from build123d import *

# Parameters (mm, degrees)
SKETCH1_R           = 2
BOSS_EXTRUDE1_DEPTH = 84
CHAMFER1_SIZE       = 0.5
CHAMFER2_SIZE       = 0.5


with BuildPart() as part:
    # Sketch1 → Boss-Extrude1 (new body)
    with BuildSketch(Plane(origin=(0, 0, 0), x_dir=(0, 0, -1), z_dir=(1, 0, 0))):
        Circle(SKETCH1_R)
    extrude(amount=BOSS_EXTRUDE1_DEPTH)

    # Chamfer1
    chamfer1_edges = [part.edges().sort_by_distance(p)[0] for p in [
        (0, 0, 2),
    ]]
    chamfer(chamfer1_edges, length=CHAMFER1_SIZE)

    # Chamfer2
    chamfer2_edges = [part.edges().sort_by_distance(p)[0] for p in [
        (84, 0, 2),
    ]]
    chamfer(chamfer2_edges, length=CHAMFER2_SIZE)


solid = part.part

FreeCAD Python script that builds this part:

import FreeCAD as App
import Part
import Sketcher
Q = App.Units.Quantity


def edges_at(feature, points):
    """Names of the edges that pass closest to the given points."""
    edges = feature.Shape.Edges
    near = lambda p: min(range(len(edges)), key=lambda i: edges[i].distToShape(Part.Vertex(*p))[0])
    return sorted({f"Edge{near(p) + 1}" for p in points})

doc = App.newDocument("Part")
params = doc.addObject("Spreadsheet::Sheet", "Params")
for row, (alias, value) in enumerate([
    ("sketch1_diameter", "4 mm"),
    ("pad1_length", "84 mm"),
    ("chamfer_size", "0.5 mm"),
    ("chamfer2_size", "0.5 mm"),
], start=1):
    params.set(f"A{row}", alias)
    params.set(f"B{row}", "=" + value)
    params.setAlias(f"B{row}", alias)

body = doc.addObject("PartDesign::Body", "Body")

sketch1 = body.newObject("Sketcher::SketchObject", "Sketch")
sketch1.AttachmentSupport = (doc.getObject("YZ_Plane"), [""])
sketch1.MapMode = "FlatFace"
sketch1.addGeometry(Part.Circle(App.Vector(0, 0, 0), App.Vector(0, 0, 1), 2), False)
sketch1.addConstraint([
    Sketcher.Constraint("Coincident", 0, 3, -1, 1),
    Sketcher.Constraint("Diameter", 0, Q("4 mm")),
])
sketch1.setExpression("Constraints[1]", "Params.sketch1_diameter")
pad1 = body.newObject("PartDesign::Pad", "Pad")
pad1.Profile = sketch1
pad1.setExpression("Length", "Params.pad1_length")
doc.recompute()

chamfer = body.newObject("PartDesign::Chamfer", "Chamfer")
chamfer.Base = (pad1, edges_at(pad1, [(0, 0, 2)]))
chamfer.setExpression("Size", "Params.chamfer_size")
doc.recompute()

chamfer2 = body.newObject("PartDesign::Chamfer", "Chamfer001")
chamfer2.Base = (chamfer, edges_at(chamfer, [(84, 0, 2)]))
chamfer2.setExpression("Size", "Params.chamfer2_size")

doc.recompute()
